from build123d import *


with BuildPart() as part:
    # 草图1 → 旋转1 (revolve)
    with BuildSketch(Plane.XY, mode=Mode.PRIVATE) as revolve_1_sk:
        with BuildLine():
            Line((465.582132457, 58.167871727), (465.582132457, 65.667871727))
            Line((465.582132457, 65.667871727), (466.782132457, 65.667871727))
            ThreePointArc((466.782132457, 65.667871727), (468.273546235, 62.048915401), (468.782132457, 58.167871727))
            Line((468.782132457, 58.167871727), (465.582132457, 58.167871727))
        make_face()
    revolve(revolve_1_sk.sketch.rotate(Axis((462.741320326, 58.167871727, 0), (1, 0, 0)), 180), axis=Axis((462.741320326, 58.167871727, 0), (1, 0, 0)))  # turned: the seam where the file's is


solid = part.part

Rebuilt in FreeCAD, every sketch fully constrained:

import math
import FreeCAD as App
import Part
import Sketcher

V = App.Vector
Q = App.Units.Quantity

doc = App.newDocument("Part")
params = doc.addObject("Spreadsheet::Sheet", "Params")
for row, (alias, value) in enumerate([
    ("sketch1_width", "3.2 mm"),
    ("sketch1_width2", "1.2 mm"),
    ("sketch1_height", "7.5 mm"),
    ("revolution_angle", "360 deg"),
], start=1):
    params.set(f"A{row}", alias)
    params.set(f"B{row}", "=" + value)
    params.setAlias(f"B{row}", alias)

body = doc.addObject("PartDesign::Body", "Body")

sketch1 = body.newObject("Sketcher::SketchObject", "Sketch")
sketch1.AttachmentSupport = (doc.getObject("XY_Plane"), [""])
sketch1.MapMode = "FlatFace"
sketch1.addGeometry([
    Part.LineSegment(V(465.6, 65.7, 0), V(465.6, 58.2, 0)),
    Part.LineSegment(V(465.6, 58.2, 0), V(468.8, 58.2, 0)),
    Part.ArcOfCircle(Part.Circle(V(453.7, 58.2, 0), V(0, 0, 1), 15.1), math.radians(0), math.radians(30)),
    Part.LineSegment(V(466.8, 65.7, 0), V(465.6, 65.7, 0)),
], False)
sketch1.addGeometry(Part.LineSegment(V(453.7, 58.2, 0), V(468.8, 58.2, 0)), True)
sketch1.addConstraint([
    Sketcher.Constraint("Coincident", 0, 2, 1, 1),
    Sketcher.Constraint("Coincident", 1, 2, 2, 1),
    Sketcher.Constraint("Coincident", 2, 2, 3, 1),
    Sketcher.Constraint("Coincident", 3, 2, 0, 1),
    Sketcher.Constraint("Vertical", 0),
    Sketcher.Constraint("Horizontal", 1),
    Sketcher.Constraint("Horizontal", 3),
    Sketcher.Constraint("Horizontal", 4),
    Sketcher.Constraint("Coincident", 4, 1, 2, 3),
    Sketcher.Constraint("Coincident", 4, 2, 1, 2),
    Sketcher.Constraint("DistanceX", 1, 1, 1, 2, Q("3.2 mm")),
    Sketcher.Constraint("DistanceX", 3, 2, 3, 1, Q("1.2 mm")),
    Sketcher.Constraint("DistanceY", 0, 2, 0, 1, Q("7.5 mm")),
    Sketcher.Constraint("DistanceY", -1, 1, 2, 3, Q("58.167872 mm")),
    Sketcher.Constraint("DistanceX", -1, 1, 2, 3, Q("453.719632 mm")),
])
sketch1.setExpression("Constraints[10]", "Params.sketch1_width")
sketch1.setExpression("Constraints[11]", "Params.sketch1_width2")
sketch1.setExpression("Constraints[12]", "Params.sketch1_height")
revolution = body.newObject("PartDesign::Revolution", "Revolution")
revolution.Profile = sketch1
revolution.ReferenceAxis = (sketch1, ["Axis0"])
revolution.setExpression("Angle", "Params.revolution_angle")

doc.recompute()
